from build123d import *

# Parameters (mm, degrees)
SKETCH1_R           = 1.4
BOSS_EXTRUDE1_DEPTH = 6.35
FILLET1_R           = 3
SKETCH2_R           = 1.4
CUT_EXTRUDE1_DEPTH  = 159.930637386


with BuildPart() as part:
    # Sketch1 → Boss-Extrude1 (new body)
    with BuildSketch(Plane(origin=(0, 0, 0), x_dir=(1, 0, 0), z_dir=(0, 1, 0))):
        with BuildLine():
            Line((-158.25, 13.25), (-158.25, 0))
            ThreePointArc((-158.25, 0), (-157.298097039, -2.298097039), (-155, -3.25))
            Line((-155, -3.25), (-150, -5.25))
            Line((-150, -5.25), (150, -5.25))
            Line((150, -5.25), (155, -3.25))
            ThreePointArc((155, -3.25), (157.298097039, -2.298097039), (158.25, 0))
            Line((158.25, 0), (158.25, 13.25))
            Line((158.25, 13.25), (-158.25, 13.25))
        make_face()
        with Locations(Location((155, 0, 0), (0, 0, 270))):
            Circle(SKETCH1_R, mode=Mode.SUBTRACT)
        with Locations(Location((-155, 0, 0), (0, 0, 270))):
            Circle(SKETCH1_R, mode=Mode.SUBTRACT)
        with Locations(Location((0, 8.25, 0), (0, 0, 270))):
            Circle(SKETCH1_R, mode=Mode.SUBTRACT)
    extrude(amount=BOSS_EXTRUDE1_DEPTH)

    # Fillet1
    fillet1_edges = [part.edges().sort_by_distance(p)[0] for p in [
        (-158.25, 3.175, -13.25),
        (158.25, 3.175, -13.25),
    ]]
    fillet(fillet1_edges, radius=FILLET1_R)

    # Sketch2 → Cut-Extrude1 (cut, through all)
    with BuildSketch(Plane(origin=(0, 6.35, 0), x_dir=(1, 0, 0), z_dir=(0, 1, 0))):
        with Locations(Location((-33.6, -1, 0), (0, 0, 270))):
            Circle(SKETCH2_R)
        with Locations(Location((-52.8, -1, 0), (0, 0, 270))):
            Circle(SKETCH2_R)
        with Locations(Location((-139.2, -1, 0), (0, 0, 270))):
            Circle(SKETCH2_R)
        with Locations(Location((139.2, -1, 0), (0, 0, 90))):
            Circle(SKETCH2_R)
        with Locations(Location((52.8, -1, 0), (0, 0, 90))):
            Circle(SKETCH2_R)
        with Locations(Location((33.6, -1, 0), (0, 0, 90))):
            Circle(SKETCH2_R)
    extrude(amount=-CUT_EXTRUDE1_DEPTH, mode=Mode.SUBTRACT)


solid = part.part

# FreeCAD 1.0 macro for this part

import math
import FreeCAD as App
import Part
import Sketcher

V = App.Vector
Q = App.Units.Quantity


def edges_at(feature, points):
    """Names of the edges that pass closest to the given points."""
    edges = feature.Shape.Edges
    near = lambda p: min(range(len(edges)), key=lambda i: edges[i].distToShape(Part.Vertex(*p))[0])
    return sorted({f"Edge{near(p) + 1}" for p in points})

doc = App.newDocument("Part")
body = doc.addObject("PartDesign::Body", "Body")

# Sketch on XZ plane
sketch1 = body.newObject("Sketcher::SketchObject", "Sketch")
sketch1.AttachmentSupport = (doc.getObject("XZ_Plane"), [""])
sketch1.MapMode = "FlatFace"
sketch1.addGeometry([
    Part.LineSegment(V(-158.25, -13.25, 0), V(-158.25, 0, 0)),  # 0
    Part.ArcOfCircle(Part.Circle(V(-155, 0, 0), V(0, 0, 1), 3.25), math.radians(90), math.radians(180)),  # 1
    Part.LineSegment(V(-155, 3.25, 0), V(-150, 5.25, 0)),  # 2
    Part.LineSegment(V(-150, 5.25, 0), V(150, 5.25, 0)),  # 3
    Part.LineSegment(V(150, 5.25, 0), V(155, 3.25, 0)),  # 4
    Part.ArcOfCircle(Part.Circle(V(155, 0, 0), V(0, 0, 1), 3.25), math.radians(0), math.radians(90)),  # 5
    Part.LineSegment(V(158.25, 0, 0), V(158.25, -13.25, 0)),  # 6
    Part.LineSegment(V(158.25, -13.25, 0), V(-158.25, -13.25, 0)),  # 7
    Part.Circle(V(-155, 0, 0), V(0, 0, 1), 1.4),  # 8
    Part.Circle(V(155, 0, 0), V(0, 0, 1), 1.4),  # 9
    Part.Circle(V(0, -8.25, 0), V(0, 0, 1), 1.4),  # 10
], False)
sketch1.addConstraint([
    Sketcher.Constraint("Tangent", 0, 2, 1, 2),
    Sketcher.Constraint("Coincident", 1, 1, 2, 1),
    Sketcher.Constraint("Coincident", 2, 2, 3, 1),
    Sketcher.Constraint("Coincident", 3, 2, 4, 1),
    Sketcher.Constraint("Coincident", 4, 2, 5, 2),
    Sketcher.Constraint("Tangent", 5, 1, 6, 1),
    Sketcher.Constraint("Coincident", 6, 2, 7, 1),
    Sketcher.Constraint("Coincident", 7, 2, 0, 1),
    Sketcher.Constraint("Vertical", 0),
    Sketcher.Constraint("Horizontal", 3),
    Sketcher.Constraint("Vertical", 6),
    Sketcher.Constraint("Horizontal", 7),
    Sketcher.Constraint("Coincident", 8, 3, 1, 3),
    Sketcher.Constraint("Coincident", 9, 3, 5, 3),
    Sketcher.Constraint("Equal", 1, 5),
    Sketcher.Constraint("Equal", 8, 9),
    Sketcher.Constraint("Equal", 9, 10),
    Sketcher.Constraint("Symmetric", 1, 3, 5, 3, -1, 1),
    Sketcher.Constraint("Symmetric", 1, 1, 4, 2, -2),
    Sketcher.Constraint("PointOnObject", 10, 3, -2),
    Sketcher.Constraint("Vertical", 8, 3, 1, 1),
    Sketcher.Constraint("Equal", 2, 4),
    Sketcher.Constraint("Diameter", 8, Q("2.8 mm")),
    Sketcher.Constraint("DistanceX", 3, 1, 3, 2, Q("300 mm")),
    Sketcher.Constraint("Radius", 1, Q("3.25 mm")),
    Sketcher.Constraint("DistanceX", 7, 2, 7, 1, Q("316.5 mm")),
    Sketcher.Constraint("DistanceY", 1, 1, 2, 2, Q("2 mm")),
    Sketcher.Constraint("DistanceY", 0, 1, 0, 2, Q("13.25 mm")),
    Sketcher.Constraint("DistanceY", 10, 3, 1, 1, Q("11.5 mm")),
])
pad1 = body.newObject("PartDesign::Pad", "Pad")
pad1.Profile = sketch1
pad1.Length = 6.35
pad1.Reversed = True
doc.recompute()

fillet = body.newObject("PartDesign::Fillet", "Fillet")
fillet.Base = (pad1, edges_at(pad1, [(-158.25, 3.175, -13.25), (158.25, 3.175, -13.25)]))
fillet.Radius = 3

# Sketch on XZ plane
sketch2 = body.newObject("Sketcher::SketchObject", "Sketch001")
sketch2.AttachmentSupport = (doc.getObject("XZ_Plane"), [""])
sketch2.MapMode = "FlatFace"
sketch2.AttachmentOffset = App.Placement(V(0, 0, -6.35), App.Rotation())
sketch2.addGeometry([
    Part.Circle(V(-33.6, 1, 0), V(0, 0, 1), 1.4),  # 0
    Part.Circle(V(-52.8, 1, 0), V(0, 0, 1), 1.4),  # 1
    Part.Circle(V(-139.2, 1, 0), V(0, 0, 1), 1.4),  # 2
    Part.Circle(V(139.2, 1, 0), V(0, 0, 1), 1.4),  # 3
    Part.Circle(V(52.8, 1, 0), V(0, 0, 1), 1.4),  # 4
    Part.Circle(V(33.6, 1, 0), V(0, 0, 1), 1.4),  # 5
], False)
sketch2.addConstraint([
    Sketcher.Constraint("Equal", 0, 1),
    Sketcher.Constraint("Equal", 1, 2),
    Sketcher.Constraint("Equal", 2, 3),
    Sketcher.Constraint("Equal", 3, 4),
    Sketcher.Constraint("Equal", 4, 5),
    Sketcher.Constraint("Symmetric", 2, 3, 3, 3, -2),
    Sketcher.Constraint("Symmetric", 1, 3, 4, 3, -2),
    Sketcher.Constraint("Symmetric", 0, 3, 5, 3, -2),
    Sketcher.Constraint("Horizontal", 0, 3, 1, 3),
    Sketcher.Constraint("Horizontal", 1, 3, 2, 3),
    Sketcher.Constraint("Diameter", 0, Q("2.8 mm")),
    Sketcher.Constraint("DistanceY", -1, 1, 0, 3, Q("1 mm")),
    Sketcher.Constraint("DistanceX", 1, 3, 3, 3, Q("192 mm")),
    Sketcher.Constraint("DistanceX", 0, 3, -1, 1, Q("33.6 mm")),
    Sketcher.Constraint("DistanceX", 1, 3, -1, 1, Q("52.8 mm")),
])
pocket1 = body.newObject("PartDesign::Pocket", "Pocket")
pocket1.Profile = sketch2
pocket1.Type = "ThroughAll"
pocket1.Reversed = True

doc.recompute()
